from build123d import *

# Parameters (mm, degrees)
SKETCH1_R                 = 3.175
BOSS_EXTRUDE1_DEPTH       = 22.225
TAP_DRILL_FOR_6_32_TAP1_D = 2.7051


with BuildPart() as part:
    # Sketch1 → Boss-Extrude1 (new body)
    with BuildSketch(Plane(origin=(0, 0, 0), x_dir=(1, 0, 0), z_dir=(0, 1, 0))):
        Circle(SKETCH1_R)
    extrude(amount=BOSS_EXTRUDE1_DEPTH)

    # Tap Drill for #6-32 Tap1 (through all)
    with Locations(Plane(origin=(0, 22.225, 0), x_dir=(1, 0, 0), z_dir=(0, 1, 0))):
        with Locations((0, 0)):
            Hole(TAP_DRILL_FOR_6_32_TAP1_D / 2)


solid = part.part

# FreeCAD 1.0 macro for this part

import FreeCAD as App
import Part
import Sketcher

V = App.Vector
Q = App.Units.Quantity

doc = App.newDocument("Part")
params = doc.addObject("Spreadsheet::Sheet", "Params")
for row, (alias, value) in enumerate([
    ("sketch1_diameter", "0.25 in"),
    ("pad1_length", "0.875 in"),
    ("hole_diameter", "0.1065 in"),
], start=1):
    params.set(f"A{row}", alias)
    params.set(f"B{row}", "=" + value)
    params.setAlias(f"B{row}", alias)

body = doc.addObject("PartDesign::Body", "Body")

# Sketch on XZ plane
sketch1 = doc.addObject("Sketcher::SketchObject", "Sketch")
body.addObject(sketch1)
sketch1.AttachmentSupport = (doc.XZ_Plane, [""])
sketch1.MapMode = "FlatFace"
sketch1.addGeometry(Part.Circle(V(0, 0, 0), V(0, 0, 1), 3.2), False)
sketch1.addConstraint([
    Sketcher.Constraint("Coincident", 0, 3, -1, 1),
    Sketcher.Constraint("Diameter", 0, Q("0.25 in")),
])
sketch1.setExpression("Constraints[1]", "Params.sketch1_diameter")
pad1 = doc.addObject("PartDesign::Pad", "Pad")
body.addObject(pad1)
pad1.Profile = sketch1
pad1.setExpression("Length", "Params.pad1_length")
pad1.Reversed = True

# Sketch on XZ plane
sketch2 = doc.addObject("Sketcher::SketchObject", "Sketch001")
body.addObject(sketch2)
sketch2.AttachmentSupport = (doc.XZ_Plane, [""])
sketch2.MapMode = "FlatFace"
sketch2.AttachmentOffset = App.Placement(V(0, 0, -0.875 * 25.4), App.Rotation())
sketch2.addGeometry(Part.Circle(V(0, 0, 0), V(0, 0, 1), 1.4), False)
sketch2.addConstraint([
    Sketcher.Constraint("Coincident", 0, 3, -1, 1),
    Sketcher.Constraint("Diameter", 0, Q("0.1065 in")),
])
doc.recompute()
hole = doc.addObject("PartDesign::Hole", "Hole")
body.addObject(hole)
hole.Profile = sketch2
hole.ThreadType = "None"
hole.setExpression("Diameter", "Params.hole_diameter")
hole.DepthType = "ThroughAll"
hole.Reversed = True

doc.recompute()
